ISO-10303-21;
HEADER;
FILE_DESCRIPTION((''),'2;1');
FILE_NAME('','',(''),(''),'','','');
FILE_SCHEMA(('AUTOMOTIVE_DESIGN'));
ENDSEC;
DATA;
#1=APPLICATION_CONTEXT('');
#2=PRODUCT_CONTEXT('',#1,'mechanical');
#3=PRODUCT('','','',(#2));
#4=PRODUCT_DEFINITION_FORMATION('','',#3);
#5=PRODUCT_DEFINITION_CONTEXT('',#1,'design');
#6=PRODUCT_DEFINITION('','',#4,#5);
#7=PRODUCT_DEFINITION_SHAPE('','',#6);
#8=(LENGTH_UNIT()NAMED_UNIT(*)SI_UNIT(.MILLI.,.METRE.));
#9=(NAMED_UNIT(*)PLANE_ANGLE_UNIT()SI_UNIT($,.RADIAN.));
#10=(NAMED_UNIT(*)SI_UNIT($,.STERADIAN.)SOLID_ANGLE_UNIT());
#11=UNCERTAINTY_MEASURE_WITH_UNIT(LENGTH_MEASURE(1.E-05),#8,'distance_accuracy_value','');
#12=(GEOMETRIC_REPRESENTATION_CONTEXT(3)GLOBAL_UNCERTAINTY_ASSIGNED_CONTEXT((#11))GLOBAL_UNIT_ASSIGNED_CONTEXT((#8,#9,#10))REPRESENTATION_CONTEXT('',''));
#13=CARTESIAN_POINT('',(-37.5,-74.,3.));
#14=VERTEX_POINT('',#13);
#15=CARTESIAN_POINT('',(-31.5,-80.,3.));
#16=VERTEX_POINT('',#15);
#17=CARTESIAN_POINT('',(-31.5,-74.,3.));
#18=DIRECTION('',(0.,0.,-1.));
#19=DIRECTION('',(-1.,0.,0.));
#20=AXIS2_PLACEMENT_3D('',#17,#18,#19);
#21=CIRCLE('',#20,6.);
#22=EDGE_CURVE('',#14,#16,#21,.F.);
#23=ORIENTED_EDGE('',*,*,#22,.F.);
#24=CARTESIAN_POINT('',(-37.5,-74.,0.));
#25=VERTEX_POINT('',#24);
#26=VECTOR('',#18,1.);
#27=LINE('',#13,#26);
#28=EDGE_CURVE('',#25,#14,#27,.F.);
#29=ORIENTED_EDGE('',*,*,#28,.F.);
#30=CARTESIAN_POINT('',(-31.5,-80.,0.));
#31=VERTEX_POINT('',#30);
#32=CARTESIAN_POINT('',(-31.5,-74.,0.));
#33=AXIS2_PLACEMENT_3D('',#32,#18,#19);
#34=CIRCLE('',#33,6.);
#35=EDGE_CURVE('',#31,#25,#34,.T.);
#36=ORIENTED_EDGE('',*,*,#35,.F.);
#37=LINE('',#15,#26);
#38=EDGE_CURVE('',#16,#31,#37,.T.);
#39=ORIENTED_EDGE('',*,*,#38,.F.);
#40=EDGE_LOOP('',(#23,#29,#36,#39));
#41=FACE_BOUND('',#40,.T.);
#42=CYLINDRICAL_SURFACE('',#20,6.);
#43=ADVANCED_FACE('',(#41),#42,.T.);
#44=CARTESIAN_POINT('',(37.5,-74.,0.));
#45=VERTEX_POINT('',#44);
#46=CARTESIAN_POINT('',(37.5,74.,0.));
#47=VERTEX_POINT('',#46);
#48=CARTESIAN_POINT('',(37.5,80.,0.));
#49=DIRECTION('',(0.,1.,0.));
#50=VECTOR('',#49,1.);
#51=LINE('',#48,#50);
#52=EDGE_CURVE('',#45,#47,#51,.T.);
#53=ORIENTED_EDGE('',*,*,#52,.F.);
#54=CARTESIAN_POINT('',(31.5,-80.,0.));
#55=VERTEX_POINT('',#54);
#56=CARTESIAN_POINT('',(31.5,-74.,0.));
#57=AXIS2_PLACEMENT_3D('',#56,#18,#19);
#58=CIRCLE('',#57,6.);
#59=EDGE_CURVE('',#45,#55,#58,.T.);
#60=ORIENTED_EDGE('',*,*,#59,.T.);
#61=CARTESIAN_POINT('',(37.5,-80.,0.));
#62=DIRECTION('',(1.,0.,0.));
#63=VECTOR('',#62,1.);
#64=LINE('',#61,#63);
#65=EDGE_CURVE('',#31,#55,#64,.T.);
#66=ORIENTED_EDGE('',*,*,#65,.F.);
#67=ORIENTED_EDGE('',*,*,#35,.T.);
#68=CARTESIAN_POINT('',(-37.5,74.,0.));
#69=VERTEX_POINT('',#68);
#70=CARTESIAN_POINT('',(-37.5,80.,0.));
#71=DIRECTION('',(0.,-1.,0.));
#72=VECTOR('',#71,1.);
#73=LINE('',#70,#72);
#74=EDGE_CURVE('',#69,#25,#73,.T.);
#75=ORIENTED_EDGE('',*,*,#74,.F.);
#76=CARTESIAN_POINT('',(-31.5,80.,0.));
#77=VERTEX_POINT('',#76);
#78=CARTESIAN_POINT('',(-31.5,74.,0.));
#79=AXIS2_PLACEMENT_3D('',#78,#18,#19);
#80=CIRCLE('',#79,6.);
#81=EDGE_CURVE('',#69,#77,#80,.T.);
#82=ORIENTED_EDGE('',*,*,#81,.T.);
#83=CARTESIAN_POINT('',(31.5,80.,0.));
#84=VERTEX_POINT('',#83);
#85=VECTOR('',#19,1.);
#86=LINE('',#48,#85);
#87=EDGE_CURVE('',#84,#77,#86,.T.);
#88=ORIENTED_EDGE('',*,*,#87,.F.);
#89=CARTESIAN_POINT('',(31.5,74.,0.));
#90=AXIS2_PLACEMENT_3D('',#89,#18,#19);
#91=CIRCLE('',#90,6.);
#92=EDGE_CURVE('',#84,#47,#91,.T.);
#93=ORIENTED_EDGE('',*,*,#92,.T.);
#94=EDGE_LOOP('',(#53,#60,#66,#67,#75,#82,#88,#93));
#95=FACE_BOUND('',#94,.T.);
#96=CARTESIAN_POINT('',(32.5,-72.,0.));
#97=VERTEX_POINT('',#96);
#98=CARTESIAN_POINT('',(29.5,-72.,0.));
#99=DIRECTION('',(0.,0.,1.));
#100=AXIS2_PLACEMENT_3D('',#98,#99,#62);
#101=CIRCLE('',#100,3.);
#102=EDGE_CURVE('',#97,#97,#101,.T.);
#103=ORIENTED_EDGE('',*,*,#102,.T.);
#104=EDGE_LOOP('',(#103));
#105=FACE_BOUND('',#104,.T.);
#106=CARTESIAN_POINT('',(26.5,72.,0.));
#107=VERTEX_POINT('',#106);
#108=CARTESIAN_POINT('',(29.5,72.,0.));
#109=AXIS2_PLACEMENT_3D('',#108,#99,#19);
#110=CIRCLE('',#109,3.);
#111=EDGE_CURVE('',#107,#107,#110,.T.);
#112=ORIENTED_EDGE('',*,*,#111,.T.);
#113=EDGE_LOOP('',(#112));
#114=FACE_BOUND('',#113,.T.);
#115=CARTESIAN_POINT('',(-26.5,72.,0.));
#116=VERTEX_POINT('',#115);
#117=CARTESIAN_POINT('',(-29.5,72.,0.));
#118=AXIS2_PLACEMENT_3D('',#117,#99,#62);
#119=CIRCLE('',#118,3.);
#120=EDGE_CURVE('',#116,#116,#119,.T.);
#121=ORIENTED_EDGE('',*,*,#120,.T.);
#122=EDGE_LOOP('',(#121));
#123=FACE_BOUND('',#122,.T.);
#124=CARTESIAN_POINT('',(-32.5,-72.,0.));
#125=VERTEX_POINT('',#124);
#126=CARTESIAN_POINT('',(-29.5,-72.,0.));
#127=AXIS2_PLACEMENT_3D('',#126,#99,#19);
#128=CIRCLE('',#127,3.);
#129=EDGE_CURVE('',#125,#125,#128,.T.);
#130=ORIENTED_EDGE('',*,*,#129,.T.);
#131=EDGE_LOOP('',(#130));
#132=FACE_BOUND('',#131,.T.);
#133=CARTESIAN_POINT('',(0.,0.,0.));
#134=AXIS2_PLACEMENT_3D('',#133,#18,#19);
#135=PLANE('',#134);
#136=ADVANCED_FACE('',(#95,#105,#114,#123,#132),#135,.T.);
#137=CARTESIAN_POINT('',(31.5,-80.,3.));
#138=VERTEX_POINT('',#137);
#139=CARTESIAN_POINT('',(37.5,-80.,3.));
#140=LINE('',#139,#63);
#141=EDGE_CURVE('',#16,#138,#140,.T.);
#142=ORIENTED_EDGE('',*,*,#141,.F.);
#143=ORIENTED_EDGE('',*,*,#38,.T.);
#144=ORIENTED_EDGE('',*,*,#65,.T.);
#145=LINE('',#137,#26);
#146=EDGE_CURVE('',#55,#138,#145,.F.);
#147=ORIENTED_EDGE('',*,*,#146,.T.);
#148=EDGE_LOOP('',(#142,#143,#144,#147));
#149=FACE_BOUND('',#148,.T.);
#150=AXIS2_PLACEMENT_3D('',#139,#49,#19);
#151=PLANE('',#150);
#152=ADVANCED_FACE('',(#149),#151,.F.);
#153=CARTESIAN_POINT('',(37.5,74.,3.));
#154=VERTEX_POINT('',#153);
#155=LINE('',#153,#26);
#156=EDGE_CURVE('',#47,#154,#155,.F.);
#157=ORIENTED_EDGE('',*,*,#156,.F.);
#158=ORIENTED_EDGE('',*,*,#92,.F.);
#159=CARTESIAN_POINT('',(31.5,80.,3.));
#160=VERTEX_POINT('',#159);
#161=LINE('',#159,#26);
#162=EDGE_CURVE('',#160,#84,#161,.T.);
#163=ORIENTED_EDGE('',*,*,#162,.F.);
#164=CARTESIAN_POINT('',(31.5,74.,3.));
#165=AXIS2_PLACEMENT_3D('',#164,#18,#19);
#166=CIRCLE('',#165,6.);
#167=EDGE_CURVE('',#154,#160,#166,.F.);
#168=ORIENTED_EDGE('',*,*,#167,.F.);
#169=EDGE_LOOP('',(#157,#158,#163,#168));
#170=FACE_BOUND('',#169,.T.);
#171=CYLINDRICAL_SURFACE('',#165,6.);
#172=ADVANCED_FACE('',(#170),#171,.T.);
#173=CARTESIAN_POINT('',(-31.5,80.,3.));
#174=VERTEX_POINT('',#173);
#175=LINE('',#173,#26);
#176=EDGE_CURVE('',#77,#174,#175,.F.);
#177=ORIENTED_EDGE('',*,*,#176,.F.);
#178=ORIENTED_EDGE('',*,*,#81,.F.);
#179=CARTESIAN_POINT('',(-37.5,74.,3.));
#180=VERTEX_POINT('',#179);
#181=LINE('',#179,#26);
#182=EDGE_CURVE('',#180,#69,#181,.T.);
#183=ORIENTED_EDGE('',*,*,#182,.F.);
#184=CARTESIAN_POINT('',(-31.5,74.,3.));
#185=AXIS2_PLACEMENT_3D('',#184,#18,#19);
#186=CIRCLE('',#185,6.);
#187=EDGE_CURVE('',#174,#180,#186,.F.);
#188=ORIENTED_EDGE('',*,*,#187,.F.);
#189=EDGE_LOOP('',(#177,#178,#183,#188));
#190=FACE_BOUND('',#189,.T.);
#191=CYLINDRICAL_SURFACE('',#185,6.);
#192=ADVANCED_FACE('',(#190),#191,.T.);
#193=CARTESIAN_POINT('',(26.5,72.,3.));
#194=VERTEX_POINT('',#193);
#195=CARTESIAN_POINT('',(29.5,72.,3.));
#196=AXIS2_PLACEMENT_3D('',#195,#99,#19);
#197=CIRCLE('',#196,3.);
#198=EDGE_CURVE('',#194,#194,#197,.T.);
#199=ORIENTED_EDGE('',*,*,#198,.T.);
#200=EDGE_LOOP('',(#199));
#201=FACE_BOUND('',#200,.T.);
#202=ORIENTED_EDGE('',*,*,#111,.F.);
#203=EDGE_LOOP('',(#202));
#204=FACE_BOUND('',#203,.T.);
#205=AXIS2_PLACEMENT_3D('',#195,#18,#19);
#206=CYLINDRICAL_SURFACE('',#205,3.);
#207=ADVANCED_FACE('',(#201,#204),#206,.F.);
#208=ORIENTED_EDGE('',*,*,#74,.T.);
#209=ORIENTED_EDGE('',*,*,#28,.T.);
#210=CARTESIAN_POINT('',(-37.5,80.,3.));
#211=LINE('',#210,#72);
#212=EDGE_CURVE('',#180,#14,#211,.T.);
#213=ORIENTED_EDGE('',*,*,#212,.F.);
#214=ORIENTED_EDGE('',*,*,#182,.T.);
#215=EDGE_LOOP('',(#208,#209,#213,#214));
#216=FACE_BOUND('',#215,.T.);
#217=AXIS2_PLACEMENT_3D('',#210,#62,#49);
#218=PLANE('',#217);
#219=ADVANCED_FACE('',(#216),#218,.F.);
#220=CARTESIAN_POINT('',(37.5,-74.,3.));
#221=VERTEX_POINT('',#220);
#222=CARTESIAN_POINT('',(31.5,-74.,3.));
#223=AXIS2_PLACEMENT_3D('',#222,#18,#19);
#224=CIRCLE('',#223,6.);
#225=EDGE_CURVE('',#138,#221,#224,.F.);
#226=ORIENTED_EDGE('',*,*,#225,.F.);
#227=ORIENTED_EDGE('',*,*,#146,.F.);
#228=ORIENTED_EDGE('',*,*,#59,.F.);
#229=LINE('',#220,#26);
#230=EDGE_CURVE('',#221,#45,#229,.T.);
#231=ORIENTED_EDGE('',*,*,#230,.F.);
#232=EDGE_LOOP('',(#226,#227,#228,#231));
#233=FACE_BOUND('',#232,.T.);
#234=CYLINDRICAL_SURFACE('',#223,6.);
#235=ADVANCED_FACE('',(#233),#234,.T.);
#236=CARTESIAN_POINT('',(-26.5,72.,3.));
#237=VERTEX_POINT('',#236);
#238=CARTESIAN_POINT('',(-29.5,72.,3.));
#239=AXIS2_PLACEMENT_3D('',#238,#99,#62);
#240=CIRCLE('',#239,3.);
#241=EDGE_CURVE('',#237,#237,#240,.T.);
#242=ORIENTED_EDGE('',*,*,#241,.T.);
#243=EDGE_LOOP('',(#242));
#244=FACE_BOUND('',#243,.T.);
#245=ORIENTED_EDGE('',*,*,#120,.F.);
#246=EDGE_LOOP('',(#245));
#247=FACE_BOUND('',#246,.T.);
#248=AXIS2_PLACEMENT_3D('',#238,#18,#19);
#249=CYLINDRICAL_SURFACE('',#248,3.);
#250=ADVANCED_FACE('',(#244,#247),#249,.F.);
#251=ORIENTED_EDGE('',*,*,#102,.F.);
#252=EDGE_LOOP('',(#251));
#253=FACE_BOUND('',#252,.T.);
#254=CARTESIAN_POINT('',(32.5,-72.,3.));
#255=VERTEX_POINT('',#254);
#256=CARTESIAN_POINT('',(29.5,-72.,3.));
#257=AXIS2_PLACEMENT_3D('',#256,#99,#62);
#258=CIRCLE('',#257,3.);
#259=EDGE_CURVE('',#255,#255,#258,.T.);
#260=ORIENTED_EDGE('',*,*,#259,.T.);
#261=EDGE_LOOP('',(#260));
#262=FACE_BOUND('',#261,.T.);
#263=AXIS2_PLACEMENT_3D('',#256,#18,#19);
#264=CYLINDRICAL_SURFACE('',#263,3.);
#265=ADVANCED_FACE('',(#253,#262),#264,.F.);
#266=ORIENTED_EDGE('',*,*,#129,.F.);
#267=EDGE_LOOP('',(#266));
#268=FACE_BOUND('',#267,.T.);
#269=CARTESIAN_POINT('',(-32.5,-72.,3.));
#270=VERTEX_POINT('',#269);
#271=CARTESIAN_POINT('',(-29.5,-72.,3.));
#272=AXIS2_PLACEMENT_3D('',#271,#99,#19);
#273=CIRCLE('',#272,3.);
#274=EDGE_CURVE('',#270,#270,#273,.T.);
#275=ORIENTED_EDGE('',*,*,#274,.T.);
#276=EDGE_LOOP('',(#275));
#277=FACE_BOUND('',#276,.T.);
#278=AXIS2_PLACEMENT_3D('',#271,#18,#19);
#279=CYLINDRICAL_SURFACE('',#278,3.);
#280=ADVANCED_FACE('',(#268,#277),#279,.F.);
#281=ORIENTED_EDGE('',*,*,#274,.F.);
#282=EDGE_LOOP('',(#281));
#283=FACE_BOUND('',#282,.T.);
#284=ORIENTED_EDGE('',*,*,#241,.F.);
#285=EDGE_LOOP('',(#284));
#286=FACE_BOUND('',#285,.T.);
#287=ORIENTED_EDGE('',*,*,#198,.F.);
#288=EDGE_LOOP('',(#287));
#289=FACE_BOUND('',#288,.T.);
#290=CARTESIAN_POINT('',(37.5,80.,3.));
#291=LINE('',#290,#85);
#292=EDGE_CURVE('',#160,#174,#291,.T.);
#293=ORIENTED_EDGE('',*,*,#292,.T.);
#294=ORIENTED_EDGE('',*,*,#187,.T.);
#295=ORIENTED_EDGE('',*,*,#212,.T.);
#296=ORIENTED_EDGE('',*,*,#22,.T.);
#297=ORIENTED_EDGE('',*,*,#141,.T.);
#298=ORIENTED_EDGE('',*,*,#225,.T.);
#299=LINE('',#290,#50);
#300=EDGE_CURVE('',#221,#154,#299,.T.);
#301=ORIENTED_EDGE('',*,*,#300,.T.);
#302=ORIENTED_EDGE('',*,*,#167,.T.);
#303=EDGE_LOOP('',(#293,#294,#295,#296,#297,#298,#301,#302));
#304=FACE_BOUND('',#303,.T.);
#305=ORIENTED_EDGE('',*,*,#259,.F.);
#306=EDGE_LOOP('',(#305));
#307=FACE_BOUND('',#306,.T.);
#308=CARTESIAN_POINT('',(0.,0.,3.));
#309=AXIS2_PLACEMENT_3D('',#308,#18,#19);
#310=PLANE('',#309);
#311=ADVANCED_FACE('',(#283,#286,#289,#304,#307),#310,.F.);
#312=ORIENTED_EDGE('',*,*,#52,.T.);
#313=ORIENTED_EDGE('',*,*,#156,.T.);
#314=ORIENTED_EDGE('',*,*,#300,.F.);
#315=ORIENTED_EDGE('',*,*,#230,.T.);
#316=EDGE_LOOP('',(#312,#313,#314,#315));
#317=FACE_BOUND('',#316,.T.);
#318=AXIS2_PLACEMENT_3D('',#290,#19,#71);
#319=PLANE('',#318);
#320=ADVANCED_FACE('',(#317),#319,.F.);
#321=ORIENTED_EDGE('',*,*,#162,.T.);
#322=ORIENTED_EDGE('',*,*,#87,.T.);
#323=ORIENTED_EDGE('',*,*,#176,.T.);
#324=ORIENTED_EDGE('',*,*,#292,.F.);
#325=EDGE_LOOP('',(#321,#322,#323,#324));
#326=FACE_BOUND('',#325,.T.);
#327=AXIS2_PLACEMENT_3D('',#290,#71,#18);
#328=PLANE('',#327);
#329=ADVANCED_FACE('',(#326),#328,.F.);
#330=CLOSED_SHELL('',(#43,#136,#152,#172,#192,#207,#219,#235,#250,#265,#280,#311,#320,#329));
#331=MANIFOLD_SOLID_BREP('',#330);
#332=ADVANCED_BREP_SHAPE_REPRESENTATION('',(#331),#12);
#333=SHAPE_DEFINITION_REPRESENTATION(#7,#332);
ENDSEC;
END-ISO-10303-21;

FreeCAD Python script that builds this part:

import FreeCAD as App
import Part
import Sketcher

V = App.Vector
Q = App.Units.Quantity


def edges_at(feature, points):
    """Names of the edges that pass closest to the given points."""
    edges = feature.Shape.Edges
    near = lambda p: min(range(len(edges)), key=lambda i: edges[i].distToShape(Part.Vertex(*p))[0])
    return sorted({f"Edge{near(p) + 1}" for p in points})


def add_polygon(sketch, points):
    """Adds a closed chain of lines whose ends are joined by coincident constraints."""
    first, n = sketch.GeometryCount, len(points)
    for a, b in zip(points, points[1:] + points[:1]):
        sketch.addGeometry(Part.LineSegment(App.Vector(*a, 0), App.Vector(*b, 0)), False)
    for i in range(n):
        sketch.addConstraint(Sketcher.Constraint("Coincident", first + i, 2, first + (i + 1) % n, 1))

doc = App.newDocument("Part")
body = doc.addObject("PartDesign::Body", "Body")

# Sketch on XY plane
sketch1 = body.newObject("Sketcher::SketchObject", "Sketch")
sketch1.AttachmentSupport = (doc.getObject("XY_Plane"), [""])
sketch1.MapMode = "FlatFace"
add_polygon(sketch1, [(-37.5, 80), (-37.5, -80), (37.5, -80), (37.5, 80)])  # lines 0-3
sketch1.addGeometry(Part.Circle(V(-29.5, -72, 0), V(0, 0, 1), 3), False)  # 4
sketch1.addGeometry(Part.Circle(V(29.5, -72, 0), V(0, 0, 1), 3), False)  # 5
sketch1.addGeometry(Part.Circle(V(-29.5, 72, 0), V(0, 0, 1), 3), False)  # 6
sketch1.addGeometry(Part.Circle(V(29.5, 72, 0), V(0, 0, 1), 3), False)  # 7
sketch1.addConstraint(Sketcher.Constraint("Vertical", 0))
sketch1.addConstraint(Sketcher.Constraint("Horizontal", 1))
sketch1.addConstraint(Sketcher.Constraint("Vertical", 2))
sketch1.addConstraint(Sketcher.Constraint("Horizontal", 3))
sketch1.addConstraint(Sketcher.Constraint("Equal", 4, 5))
sketch1.addConstraint(Sketcher.Constraint("Equal", 5, 6))
sketch1.addConstraint(Sketcher.Constraint("Equal", 6, 7))
sketch1.addConstraint(Sketcher.Constraint("Symmetric", 5, 3, 6, 3, -1, 1))
sketch1.addConstraint(Sketcher.Constraint("Symmetric", 4, 3, 7, 3, -1, 1))
sketch1.addConstraint(Sketcher.Constraint("Symmetric", 0, 2, 2, 2, -1, 1))
sketch1.addConstraint(Sketcher.Constraint("Symmetric", 4, 3, 5, 3, -2))
sketch1.addConstraint(Sketcher.Constraint("Diameter", 4, Q("6 mm")))
sketch1.addConstraint(Sketcher.Constraint("DistanceX", 1, 1, 1, 2, Q("75 mm")))
sketch1.addConstraint(Sketcher.Constraint("DistanceY", 0, 2, 0, 1, Q("160 mm")))
sketch1.addConstraint(Sketcher.Constraint("DistanceY", 4, 3, -1, 1, Q("72 mm")))
sketch1.addConstraint(Sketcher.Constraint("DistanceX", 4, 3, 5, 3, Q("59 mm")))
pad1 = body.newObject("PartDesign::Pad", "Pad")
pad1.Profile = sketch1
pad1.Length = 3
doc.recompute()

fillet = body.newObject("PartDesign::Fillet", "Fillet")
fillet.Base = (pad1, edges_at(pad1, [
    (-37.5, 80, 1.5),
    (37.5, 80, 1.5),
    (37.5, -80, 1.5),
    (-37.5, -80, 1.5),
]))
fillet.Radius = 6

doc.recompute()
